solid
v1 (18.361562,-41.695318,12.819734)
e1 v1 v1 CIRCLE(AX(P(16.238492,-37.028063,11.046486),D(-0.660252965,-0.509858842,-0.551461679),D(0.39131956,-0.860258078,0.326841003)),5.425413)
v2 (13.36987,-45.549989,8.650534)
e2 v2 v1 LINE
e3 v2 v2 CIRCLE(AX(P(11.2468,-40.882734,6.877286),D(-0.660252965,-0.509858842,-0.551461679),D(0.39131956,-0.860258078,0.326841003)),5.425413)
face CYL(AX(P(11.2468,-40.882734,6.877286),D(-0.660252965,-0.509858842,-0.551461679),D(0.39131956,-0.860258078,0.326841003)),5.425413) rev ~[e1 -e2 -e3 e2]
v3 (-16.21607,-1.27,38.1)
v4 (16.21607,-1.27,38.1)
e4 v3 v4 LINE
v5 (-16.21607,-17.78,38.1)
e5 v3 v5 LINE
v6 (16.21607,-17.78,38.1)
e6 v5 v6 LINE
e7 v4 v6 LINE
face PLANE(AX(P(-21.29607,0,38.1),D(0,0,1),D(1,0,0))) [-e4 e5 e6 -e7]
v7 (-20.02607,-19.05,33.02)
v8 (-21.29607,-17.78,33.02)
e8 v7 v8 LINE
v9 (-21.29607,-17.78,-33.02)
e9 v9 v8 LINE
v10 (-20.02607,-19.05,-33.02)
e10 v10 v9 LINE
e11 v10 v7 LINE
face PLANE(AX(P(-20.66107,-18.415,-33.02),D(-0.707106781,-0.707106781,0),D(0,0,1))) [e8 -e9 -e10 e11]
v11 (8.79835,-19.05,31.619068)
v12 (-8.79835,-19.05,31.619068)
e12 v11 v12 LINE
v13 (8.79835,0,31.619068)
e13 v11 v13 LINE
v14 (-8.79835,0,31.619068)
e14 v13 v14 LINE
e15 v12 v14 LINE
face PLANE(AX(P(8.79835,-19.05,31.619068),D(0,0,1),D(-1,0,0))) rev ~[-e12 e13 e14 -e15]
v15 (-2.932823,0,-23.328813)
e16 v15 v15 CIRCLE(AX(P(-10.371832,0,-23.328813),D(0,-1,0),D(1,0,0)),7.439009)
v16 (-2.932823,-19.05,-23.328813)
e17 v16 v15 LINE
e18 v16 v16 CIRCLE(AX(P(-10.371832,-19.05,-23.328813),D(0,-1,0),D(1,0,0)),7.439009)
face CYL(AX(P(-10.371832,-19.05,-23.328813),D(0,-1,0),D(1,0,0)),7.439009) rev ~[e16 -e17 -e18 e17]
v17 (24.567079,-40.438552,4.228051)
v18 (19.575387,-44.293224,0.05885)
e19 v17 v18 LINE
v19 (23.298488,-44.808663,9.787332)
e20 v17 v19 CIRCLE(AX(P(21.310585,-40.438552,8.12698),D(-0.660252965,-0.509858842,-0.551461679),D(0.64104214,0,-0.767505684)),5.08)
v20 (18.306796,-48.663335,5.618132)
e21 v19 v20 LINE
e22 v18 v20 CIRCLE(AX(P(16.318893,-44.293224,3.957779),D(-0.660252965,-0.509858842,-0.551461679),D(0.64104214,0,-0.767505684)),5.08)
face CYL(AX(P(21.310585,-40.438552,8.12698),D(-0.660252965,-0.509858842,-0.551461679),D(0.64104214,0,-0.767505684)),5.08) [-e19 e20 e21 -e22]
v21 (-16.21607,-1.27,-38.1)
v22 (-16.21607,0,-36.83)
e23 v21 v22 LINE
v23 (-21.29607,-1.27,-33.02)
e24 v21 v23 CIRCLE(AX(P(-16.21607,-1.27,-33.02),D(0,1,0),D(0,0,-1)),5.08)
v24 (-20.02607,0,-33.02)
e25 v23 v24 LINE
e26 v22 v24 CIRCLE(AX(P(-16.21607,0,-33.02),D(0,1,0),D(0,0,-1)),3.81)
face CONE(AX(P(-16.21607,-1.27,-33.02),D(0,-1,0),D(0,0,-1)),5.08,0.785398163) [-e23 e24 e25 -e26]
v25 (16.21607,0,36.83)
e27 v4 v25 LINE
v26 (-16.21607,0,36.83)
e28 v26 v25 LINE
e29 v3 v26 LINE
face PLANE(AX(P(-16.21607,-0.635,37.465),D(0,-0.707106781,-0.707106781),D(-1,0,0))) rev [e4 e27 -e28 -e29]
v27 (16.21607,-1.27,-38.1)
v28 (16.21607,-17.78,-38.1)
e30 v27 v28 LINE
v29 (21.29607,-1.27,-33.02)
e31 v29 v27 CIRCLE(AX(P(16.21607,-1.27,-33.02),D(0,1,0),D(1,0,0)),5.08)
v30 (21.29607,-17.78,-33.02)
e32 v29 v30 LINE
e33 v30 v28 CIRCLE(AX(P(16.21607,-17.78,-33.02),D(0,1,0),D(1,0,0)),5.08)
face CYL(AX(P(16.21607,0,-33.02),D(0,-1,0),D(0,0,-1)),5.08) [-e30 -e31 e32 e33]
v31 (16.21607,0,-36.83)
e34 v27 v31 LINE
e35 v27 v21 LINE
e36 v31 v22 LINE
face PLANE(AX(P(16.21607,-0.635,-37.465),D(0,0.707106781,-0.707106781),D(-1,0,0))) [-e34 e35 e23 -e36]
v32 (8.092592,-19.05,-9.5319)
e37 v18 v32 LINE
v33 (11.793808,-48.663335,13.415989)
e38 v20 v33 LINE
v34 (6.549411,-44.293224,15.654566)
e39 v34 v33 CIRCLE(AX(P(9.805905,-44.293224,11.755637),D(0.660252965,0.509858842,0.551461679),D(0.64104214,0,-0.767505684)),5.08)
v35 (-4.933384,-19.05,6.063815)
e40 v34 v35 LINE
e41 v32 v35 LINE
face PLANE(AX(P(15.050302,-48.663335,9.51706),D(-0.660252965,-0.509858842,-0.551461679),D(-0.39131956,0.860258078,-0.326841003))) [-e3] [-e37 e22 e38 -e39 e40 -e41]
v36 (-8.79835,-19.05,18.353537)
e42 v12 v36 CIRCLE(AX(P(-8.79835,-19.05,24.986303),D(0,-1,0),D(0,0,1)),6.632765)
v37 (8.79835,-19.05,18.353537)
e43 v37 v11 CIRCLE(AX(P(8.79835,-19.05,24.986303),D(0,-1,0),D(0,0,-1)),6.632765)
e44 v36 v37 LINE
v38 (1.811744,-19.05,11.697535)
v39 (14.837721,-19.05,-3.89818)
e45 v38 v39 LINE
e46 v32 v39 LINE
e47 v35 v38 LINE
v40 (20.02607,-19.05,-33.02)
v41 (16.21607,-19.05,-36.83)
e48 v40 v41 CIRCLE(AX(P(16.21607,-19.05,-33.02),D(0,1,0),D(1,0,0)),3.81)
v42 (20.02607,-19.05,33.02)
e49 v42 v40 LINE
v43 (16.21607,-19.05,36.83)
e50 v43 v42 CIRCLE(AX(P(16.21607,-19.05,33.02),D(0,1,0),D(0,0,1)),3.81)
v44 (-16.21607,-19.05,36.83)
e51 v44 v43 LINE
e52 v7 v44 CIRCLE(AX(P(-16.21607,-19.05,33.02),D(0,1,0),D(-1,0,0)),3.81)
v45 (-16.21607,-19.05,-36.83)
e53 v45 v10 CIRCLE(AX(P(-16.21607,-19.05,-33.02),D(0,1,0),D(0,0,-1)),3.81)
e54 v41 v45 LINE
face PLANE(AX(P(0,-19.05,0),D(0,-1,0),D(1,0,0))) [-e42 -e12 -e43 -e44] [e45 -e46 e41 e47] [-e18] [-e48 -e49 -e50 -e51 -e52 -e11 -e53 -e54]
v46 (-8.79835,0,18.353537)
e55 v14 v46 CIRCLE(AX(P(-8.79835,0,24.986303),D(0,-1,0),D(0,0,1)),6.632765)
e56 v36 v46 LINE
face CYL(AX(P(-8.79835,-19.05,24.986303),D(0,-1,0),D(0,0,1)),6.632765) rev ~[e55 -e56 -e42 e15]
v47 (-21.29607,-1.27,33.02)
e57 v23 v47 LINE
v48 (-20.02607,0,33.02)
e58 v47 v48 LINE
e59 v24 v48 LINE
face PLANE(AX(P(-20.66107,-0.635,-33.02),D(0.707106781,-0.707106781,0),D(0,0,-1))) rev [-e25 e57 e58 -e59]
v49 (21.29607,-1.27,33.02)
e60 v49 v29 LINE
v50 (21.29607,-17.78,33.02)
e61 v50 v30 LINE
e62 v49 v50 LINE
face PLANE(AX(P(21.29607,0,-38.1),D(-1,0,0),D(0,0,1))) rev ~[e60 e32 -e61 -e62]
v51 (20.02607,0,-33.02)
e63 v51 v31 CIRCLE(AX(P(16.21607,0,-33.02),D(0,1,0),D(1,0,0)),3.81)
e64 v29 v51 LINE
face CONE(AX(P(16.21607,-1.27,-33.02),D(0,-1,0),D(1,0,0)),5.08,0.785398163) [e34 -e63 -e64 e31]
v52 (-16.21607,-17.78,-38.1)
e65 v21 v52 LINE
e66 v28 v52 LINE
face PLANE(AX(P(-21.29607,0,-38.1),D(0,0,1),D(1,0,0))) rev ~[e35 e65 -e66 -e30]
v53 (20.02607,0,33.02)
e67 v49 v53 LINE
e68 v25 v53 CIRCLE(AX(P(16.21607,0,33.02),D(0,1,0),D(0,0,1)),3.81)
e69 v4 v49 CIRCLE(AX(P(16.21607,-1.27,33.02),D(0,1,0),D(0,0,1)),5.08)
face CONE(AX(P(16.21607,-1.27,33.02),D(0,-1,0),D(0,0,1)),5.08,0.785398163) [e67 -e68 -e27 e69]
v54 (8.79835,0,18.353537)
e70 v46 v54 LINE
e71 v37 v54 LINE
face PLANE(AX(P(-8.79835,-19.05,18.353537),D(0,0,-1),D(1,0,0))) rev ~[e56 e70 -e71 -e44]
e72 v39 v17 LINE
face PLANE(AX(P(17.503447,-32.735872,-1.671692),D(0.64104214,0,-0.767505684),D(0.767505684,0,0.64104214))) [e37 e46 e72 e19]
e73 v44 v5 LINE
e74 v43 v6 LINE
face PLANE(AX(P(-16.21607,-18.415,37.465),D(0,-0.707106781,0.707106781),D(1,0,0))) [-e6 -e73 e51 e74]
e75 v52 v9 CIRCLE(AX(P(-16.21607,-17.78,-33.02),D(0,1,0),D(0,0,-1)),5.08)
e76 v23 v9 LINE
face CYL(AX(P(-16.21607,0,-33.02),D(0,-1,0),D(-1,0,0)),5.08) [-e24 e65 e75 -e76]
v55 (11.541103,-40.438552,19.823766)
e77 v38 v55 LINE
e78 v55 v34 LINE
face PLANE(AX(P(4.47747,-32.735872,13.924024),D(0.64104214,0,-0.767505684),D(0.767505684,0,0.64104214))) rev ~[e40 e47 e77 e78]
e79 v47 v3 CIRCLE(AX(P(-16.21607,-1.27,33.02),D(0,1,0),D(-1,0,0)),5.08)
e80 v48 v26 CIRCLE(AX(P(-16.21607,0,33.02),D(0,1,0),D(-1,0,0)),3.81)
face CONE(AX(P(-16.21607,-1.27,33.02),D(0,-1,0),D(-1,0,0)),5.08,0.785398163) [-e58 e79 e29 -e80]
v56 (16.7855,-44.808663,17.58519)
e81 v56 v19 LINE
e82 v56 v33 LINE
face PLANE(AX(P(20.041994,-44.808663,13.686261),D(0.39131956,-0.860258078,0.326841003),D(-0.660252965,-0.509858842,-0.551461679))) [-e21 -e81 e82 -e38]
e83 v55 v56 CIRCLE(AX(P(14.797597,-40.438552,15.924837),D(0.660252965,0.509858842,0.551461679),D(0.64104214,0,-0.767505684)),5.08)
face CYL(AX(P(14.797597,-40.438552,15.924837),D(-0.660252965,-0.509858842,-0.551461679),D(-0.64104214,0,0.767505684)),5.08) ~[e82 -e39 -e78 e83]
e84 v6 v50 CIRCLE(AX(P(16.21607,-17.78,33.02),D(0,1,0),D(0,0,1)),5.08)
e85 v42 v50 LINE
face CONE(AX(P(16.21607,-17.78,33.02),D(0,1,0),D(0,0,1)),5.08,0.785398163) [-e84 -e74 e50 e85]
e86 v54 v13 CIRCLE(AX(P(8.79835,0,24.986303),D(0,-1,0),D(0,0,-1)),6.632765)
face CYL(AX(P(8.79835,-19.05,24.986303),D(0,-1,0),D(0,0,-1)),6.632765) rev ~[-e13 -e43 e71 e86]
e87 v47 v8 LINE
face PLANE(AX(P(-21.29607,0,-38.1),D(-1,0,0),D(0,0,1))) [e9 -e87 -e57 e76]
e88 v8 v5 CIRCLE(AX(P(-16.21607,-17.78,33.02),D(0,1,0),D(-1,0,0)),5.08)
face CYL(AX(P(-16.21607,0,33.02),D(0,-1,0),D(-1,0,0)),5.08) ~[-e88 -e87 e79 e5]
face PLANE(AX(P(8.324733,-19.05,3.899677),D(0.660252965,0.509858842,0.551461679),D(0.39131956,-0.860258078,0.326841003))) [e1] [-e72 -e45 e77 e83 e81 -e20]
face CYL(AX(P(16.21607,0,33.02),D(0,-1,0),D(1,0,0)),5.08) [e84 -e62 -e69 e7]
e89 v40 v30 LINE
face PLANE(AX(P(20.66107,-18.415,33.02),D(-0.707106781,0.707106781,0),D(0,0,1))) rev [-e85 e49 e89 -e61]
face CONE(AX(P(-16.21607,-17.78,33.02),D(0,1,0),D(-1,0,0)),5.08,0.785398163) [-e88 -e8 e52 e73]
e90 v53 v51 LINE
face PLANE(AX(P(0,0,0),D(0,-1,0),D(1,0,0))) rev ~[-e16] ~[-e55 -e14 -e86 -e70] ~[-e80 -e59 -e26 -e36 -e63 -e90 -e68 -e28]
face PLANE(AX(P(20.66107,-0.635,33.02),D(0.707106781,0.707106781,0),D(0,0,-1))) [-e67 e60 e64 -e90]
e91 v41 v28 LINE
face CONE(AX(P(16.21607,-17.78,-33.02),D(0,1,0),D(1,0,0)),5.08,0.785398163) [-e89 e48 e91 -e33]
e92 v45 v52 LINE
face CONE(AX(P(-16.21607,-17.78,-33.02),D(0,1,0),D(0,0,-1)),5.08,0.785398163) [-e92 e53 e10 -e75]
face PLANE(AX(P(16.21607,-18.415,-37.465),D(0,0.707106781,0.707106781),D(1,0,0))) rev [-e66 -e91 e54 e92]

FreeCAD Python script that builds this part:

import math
import FreeCAD as App
import Part
import Sketcher
from FreeCAD import Vector
Q = App.Units.Quantity


def edges_at(feature, points):
    """Names of the edges that pass closest to the given points."""
    edges = feature.Shape.Edges
    near = lambda p: min(range(len(edges)), key=lambda i: edges[i].distToShape(Part.Vertex(*p))[0])
    return sorted({f"Edge{near(p) + 1}" for p in points})


def add_polygon(sketch, points):
    """Adds a closed chain of lines whose ends are joined by coincident constraints."""
    first, n = sketch.GeometryCount, len(points)
    for a, b in zip(points, points[1:] + points[:1]):
        sketch.addGeometry(Part.LineSegment(App.Vector(*a, 0), App.Vector(*b, 0)), False)
    for i in range(n):
        sketch.addConstraint(Sketcher.Constraint("Coincident", first + i, 2, first + (i + 1) % n, 1))

doc = App.newDocument("Part")
body = doc.addObject("PartDesign::Body", "Body")

# Sketch on XZ plane
sketch1 = body.newObject("Sketcher::SketchObject", "Sketch")
sketch1.AttachmentSupport = (doc.getObject("XZ_Plane"), [""])
sketch1.MapMode = "FlatFace"
add_polygon(sketch1, [(-21, 38), (-21, -38), (21, -38), (21, 38)])  # lines 0-3
sketch1.addConstraint([
    Sketcher.Constraint("Vertical", 0),
    Sketcher.Constraint("Horizontal", 1),
    Sketcher.Constraint("Vertical", 2),
    Sketcher.Constraint("Horizontal", 3),
    Sketcher.Constraint("Symmetric", 0, 2, 2, 2, -1, 1),
    Sketcher.Constraint("DistanceY", 0, 2, 0, 1, Q("3 in")),
    Sketcher.Constraint("DistanceX", 1, 1, 1, 2, Q("42.592141 mm")),
])
pad1 = body.newObject("PartDesign::Pad", "Pad")
pad1.Profile = sketch1
pad1.Length = Q("0.75 in")
doc.recompute()

fillet = body.newObject("PartDesign::Fillet", "Fillet")
fillet.Base = (pad1, edges_at(pad1, [
    (-21.296, -9.525, 38.1),
    (21.296, -9.525, 38.1),
    (21.296, -9.525, -38.1),
    (-21.296, -9.525, -38.1),
]))
fillet.Radius = Q("0.2 in")

# Sketch on XZ plane
sketch2 = body.newObject("Sketcher::SketchObject", "Sketch001")
sketch2.AttachmentSupport = (doc.getObject("XZ_Plane"), [""])
sketch2.MapMode = "FlatFace"
sketch2.AttachmentOffset = App.Placement(Vector(0, 0, 0.75 * 25.4), App.Rotation())
sketch2.addGeometry([
    Part.Circle(Vector(-10, -23, 0), Vector(0, 0, 1), 7),  # 0
    Part.LineSegment(Vector(9, 32, 0), Vector(-9, 32, 0)),  # 1
    Part.ArcOfCircle(Part.Circle(Vector(-9, 25, 0), Vector(0, 0, 1), 7), math.radians(90), math.radians(270)),  # 2
    Part.LineSegment(Vector(-9, 18, 0), Vector(9, 18, 0)),  # 3
    Part.ArcOfCircle(Part.Circle(Vector(9, 25, 0), Vector(0, 0, 1), 7), math.radians(-90), math.radians(90)),  # 4
], False)
sketch2.addConstraint([
    Sketcher.Constraint("Tangent", 1, 2, 2, 1),
    Sketcher.Constraint("Tangent", 2, 2, 3, 1),
    Sketcher.Constraint("Tangent", 3, 2, 4, 1),
    Sketcher.Constraint("Tangent", 4, 2, 1, 1),
    Sketcher.Constraint("Horizontal", 1),
    Sketcher.Constraint("Horizontal", 3),
    Sketcher.Constraint("Diameter", 0, Q("14.878018 mm")),
    Sketcher.Constraint("DistanceX", 1, 2, 1, 1, Q("17.596699 mm")),
    Sketcher.Constraint("Radius", 2, Q("6.632765 mm")),
    Sketcher.Constraint("DistanceX", 2, 3, -1, 1, Q("8.79835 mm")),
    Sketcher.Constraint("DistanceY", -1, 1, 1, 2, Q("31.619068 mm")),
    Sketcher.Constraint("DistanceX", 0, 3, 4, 3, Q("19.170182 mm")),
    Sketcher.Constraint("DistanceY", 0, 3, 1, 2, Q("54.947881 mm")),
])
pocket1 = body.newObject("PartDesign::Pocket", "Pocket")
pocket1.Profile = sketch2
pocket1.Length = Q("1 in")

# Sketch on an angled plane
sketch3 = body.newObject("Sketcher::SketchObject", "Sketch002")
sketch3.Placement = App.Placement(Vector(1.502269, 0, -1.798634), App.Rotation(Vector(0.767505684, 0, 0.64104214), Vector(0, -1, 0), Vector(0.64104214, 0, -0.767505684), "ZXY"))
add_polygon(sketch3, [(0, 19), (9, 19), (24, 45), (18, 49)])  # lines 0-3
sketch3.addConstraint([
    Sketcher.Constraint("Horizontal", 0),
    Sketcher.Constraint("Perpendicular", 1, 2),
    Sketcher.Constraint("Perpendicular", 2, 3),
    Sketcher.Constraint("DistanceY", -1, 1, 0, 2, Q("0.75 in")),
    Sketcher.Constraint("Distance", 1, Q("29.942949 mm")),
    Sketcher.Constraint("Distance", 2, Q("7.560272 mm")),
    Sketcher.Constraint("Distance", 3, Q("34.42378 mm")),
    Sketcher.Constraint("DistanceX", -1, 1, 2, 2, Q("17.652029 mm")),
])
pad2 = body.newObject("PartDesign::Pad", "Pad001")
pad2.Profile = sketch3
pad2.Length = Q("0.8 in")
pad2.Midplane = True
doc.recompute()

fillet2 = body.newObject("PartDesign::Fillet", "Fillet001")
fillet2.Base = (pad2, edges_at(pad2, [(11.033, -46.736, 19.4), (24.059, -46.736, 3.804)]))
fillet2.Radius = Q("0.2 in")

# Sketch on an angled plane
sketch4 = body.newObject("Sketcher::SketchObject", "Sketch003")
sketch4.Placement = App.Placement(Vector(-6.355681, -4.907968, -5.308442), App.Rotation(Vector(0.39131956, -0.860258078, 0.326841003), Vector(-0.641042139, 0, 0.767505684), Vector(-0.660252965, -0.509858842, -0.551461679), "ZXY"))
sketch4.addGeometry(Part.Circle(Vector(42, -2, 0), Vector(0, 0, 1), 5), False)
sketch4.addConstraint([
    Sketcher.Constraint("Diameter", 0, Q("10.850826 mm")),
    Sketcher.Constraint("DistanceX", -1, 1, 0, 3, Q("41.818574 mm")),
    Sketcher.Constraint("DistanceY", 0, 3, -1, 1, Q("1.931316 mm")),
])
pocket2 = body.newObject("PartDesign::Pocket", "Pocket001")
pocket2.Profile = sketch4
pocket2.Length = Q("1 in")
doc.recompute()

chamfer = body.newObject("PartDesign::Chamfer", "Chamfer")
chamfer.Base = (pocket2, edges_at(pocket2, [(-21.296, -19.05, 0), (-21.296, 0, 0)]))
chamfer.Size = Q("0.05 in")

doc.recompute()
